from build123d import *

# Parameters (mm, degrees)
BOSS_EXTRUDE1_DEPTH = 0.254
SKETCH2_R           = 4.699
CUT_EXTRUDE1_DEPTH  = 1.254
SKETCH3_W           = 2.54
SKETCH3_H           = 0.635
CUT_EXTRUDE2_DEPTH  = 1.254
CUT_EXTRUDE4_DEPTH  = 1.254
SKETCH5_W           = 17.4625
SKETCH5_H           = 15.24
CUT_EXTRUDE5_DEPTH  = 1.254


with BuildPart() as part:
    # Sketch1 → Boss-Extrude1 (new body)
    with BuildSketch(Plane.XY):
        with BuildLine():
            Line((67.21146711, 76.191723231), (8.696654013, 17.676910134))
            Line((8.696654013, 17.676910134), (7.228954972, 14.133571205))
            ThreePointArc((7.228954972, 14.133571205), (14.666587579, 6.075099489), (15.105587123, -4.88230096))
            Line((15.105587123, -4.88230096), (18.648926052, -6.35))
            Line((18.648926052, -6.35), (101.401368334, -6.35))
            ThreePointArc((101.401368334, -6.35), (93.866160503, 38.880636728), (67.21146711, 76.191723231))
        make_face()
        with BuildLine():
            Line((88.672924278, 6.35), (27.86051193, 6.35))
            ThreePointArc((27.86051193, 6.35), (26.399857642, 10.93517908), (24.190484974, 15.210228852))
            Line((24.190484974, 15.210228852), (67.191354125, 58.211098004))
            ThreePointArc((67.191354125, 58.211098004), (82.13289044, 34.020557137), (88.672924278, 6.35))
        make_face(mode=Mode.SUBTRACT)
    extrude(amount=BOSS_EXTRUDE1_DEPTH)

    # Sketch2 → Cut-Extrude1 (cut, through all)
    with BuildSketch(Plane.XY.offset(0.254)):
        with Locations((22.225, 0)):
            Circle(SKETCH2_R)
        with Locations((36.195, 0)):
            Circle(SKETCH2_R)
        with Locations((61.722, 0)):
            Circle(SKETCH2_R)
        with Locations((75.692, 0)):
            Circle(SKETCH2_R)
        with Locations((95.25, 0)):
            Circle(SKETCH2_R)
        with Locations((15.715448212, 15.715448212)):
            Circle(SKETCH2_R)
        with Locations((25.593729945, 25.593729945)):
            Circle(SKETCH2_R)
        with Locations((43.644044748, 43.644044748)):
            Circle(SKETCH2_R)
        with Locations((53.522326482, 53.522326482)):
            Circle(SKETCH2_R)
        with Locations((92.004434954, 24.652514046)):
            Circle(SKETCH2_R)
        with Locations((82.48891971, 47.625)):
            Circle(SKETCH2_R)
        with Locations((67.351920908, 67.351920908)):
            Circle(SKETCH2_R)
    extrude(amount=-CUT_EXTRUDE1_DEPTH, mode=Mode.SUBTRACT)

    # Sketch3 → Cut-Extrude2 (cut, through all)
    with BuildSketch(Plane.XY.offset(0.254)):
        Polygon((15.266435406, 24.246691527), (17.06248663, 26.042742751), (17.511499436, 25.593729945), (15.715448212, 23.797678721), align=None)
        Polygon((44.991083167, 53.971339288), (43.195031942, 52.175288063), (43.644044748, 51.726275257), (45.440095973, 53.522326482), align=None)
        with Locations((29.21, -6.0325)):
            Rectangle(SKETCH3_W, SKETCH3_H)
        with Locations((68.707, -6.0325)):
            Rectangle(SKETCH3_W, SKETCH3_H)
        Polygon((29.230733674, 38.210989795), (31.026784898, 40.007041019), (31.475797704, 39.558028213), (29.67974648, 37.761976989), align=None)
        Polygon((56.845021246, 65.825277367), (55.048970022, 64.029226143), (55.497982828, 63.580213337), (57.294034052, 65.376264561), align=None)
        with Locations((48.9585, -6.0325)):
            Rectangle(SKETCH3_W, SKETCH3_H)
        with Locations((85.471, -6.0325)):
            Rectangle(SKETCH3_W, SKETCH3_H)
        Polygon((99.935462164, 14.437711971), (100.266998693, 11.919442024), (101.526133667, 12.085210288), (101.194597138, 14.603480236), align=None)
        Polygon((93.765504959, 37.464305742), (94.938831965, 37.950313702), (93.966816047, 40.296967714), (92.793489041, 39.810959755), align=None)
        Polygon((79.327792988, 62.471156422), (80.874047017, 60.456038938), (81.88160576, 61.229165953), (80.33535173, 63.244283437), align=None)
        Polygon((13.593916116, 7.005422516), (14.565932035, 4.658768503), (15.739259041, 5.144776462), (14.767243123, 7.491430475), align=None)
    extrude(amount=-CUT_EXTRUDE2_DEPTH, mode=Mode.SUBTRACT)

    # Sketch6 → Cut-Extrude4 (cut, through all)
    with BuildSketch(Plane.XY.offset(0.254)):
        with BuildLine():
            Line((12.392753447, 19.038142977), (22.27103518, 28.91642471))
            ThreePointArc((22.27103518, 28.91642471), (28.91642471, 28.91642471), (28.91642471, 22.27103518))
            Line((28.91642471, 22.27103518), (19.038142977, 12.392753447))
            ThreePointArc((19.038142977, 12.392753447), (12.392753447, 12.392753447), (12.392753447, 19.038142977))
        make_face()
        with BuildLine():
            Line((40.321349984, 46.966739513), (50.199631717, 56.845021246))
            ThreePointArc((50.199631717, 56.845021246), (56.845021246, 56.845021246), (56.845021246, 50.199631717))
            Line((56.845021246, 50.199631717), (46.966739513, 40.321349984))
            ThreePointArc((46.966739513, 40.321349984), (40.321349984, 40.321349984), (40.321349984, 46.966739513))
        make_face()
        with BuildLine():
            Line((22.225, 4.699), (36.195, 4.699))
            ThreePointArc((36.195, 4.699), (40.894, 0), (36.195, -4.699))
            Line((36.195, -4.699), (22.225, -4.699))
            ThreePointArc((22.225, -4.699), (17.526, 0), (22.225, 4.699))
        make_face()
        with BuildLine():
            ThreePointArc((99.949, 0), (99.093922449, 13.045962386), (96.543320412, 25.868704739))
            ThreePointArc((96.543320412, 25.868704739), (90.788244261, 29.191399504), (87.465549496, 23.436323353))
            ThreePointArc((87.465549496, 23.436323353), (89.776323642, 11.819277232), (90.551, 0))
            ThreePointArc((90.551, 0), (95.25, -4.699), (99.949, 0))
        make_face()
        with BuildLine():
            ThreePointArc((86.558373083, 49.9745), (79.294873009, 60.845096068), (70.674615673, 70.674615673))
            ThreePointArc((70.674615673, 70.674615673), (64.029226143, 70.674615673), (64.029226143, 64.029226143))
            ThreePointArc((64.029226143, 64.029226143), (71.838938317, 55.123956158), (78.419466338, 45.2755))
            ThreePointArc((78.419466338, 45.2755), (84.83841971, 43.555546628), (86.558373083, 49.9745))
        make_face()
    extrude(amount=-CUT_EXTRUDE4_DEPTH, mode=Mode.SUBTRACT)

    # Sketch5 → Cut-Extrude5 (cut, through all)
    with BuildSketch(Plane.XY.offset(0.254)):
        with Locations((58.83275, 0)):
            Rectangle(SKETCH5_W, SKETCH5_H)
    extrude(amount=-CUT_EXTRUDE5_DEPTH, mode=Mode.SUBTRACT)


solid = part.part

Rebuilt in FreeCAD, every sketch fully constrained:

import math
import FreeCAD as App
import Part
import Sketcher
Q = App.Units.Quantity

doc = App.newDocument("Part")
body = doc.addObject("PartDesign::Body", "Body")

# Sketch on XY plane
sketch1 = body.newObject("Sketcher::SketchObject", "Sketch")
sketch1.AttachmentSupport = (doc.getObject("XY_Plane"), [""])
sketch1.MapMode = "FlatFace"
sketch1.addGeometry([
    Part.LineSegment(App.Vector(67.2, 76.2, 0), App.Vector(8.7, 17.7, 0)),  # 0
    Part.LineSegment(App.Vector(8.7, 17.7, 0), App.Vector(7.2, 14.1, 0)),  # 1
    Part.ArcOfCircle(Part.Circle(App.Vector(0, 0, 0), App.Vector(0, 0, 1), 15.9), math.radians(-18), math.radians(63)),  # 2
    Part.LineSegment(App.Vector(15.1, -4.9, 0), App.Vector(18.6, -6.3, 0)),  # 3
    Part.LineSegment(App.Vector(18.6, -6.3, 0), App.Vector(101.4, -6.3, 0)),  # 4
    Part.ArcOfCircle(Part.Circle(App.Vector(0, 0, 0), App.Vector(0, 0, 1), 101.6), math.radians(-4), math.radians(49)),  # 5
    Part.ArcOfCircle(Part.Circle(App.Vector(0, 0, 0), App.Vector(0, 0, 1), 88.9), math.radians(4), math.radians(41)),  # 6
    Part.LineSegment(App.Vector(88.7, 6.3, 0), App.Vector(27.9, 6.3, 0)),  # 7
    Part.ArcOfCircle(Part.Circle(App.Vector(0, 0, 0), App.Vector(0, 0, 1), 28.6), math.radians(12.84), math.radians(32.16)),  # 8
    Part.LineSegment(App.Vector(24.2, 15.2, 0), App.Vector(67.2, 58.2, 0)),  # 9
], False)
sketch1.addConstraint([
    Sketcher.Constraint("Coincident", 0, 2, 1, 1),
    Sketcher.Constraint("Coincident", 1, 2, 2, 2),
    Sketcher.Constraint("Coincident", 2, 1, 3, 1),
    Sketcher.Constraint("Coincident", 3, 2, 4, 1),
    Sketcher.Constraint("Coincident", 4, 2, 5, 1),
    Sketcher.Constraint("Coincident", 5, 2, 0, 1),
    Sketcher.Constraint("Coincident", 6, 1, 7, 1),
    Sketcher.Constraint("Coincident", 7, 2, 8, 1),
    Sketcher.Constraint("Coincident", 8, 2, 9, 1),
    Sketcher.Constraint("Coincident", 9, 2, 6, 2),
    Sketcher.Constraint("Horizontal", 4),
    Sketcher.Constraint("Horizontal", 7),
    Sketcher.Constraint("Coincident", 2, 3, -1, 1),
    Sketcher.Constraint("Coincident", 5, 3, -1, 1),
    Sketcher.Constraint("Coincident", 6, 3, -1, 1),
    Sketcher.Constraint("Coincident", 8, 3, -1, 1),
    Sketcher.Constraint("Perpendicular", 1, 3),
    Sketcher.Constraint("Parallel", 0, 9),
    Sketcher.Constraint("Equal", 1, 3),
    Sketcher.Constraint("Radius", 5, Q("4 in")),
    Sketcher.Constraint("Radius", 6, Q("3.5 in")),
    Sketcher.Constraint("Angle", 0, Q("-135 deg")),
    Sketcher.Constraint("Radius", 2, Q("0.625 in")),
    Sketcher.Constraint("Radius", 8, Q("1.125 in")),
    Sketcher.Constraint("Angle", 1, Q("-112.5 deg")),
    Sketcher.Constraint("DistanceY", 4, 2, 6, 1, Q("0.5 in")),
    Sketcher.Constraint("DistanceY", 3, 2, -1, 1, Q("0.25 in")),
    Sketcher.Constraint("DistanceY", 2, 1, -1, 1, 4.882301),
    Sketcher.Constraint("DistanceY", -1, 1, 9, 2, 58.211098),
    Sketcher.Constraint("DistanceX", 5, 2, 4, 2, 34.189901),
])
pad1 = body.newObject("PartDesign::Pad", "Pad")
pad1.Profile = sketch1
pad1.Length = Q("0.01 in")

# Sketch on XY plane
sketch2 = body.newObject("Sketcher::SketchObject", "Sketch001")
sketch2.AttachmentSupport = (doc.getObject("XY_Plane"), [""])
sketch2.MapMode = "FlatFace"
sketch2.AttachmentOffset = App.Placement(App.Vector(0, 0, 0.01 * 25.4), App.Rotation())
sketch2.addGeometry([
    Part.Circle(App.Vector(22.2, 0, 0), App.Vector(0, 0, 1), 4.7),  # 0
    Part.Circle(App.Vector(36.2, 0, 0), App.Vector(0, 0, 1), 4.7),  # 1
    Part.Circle(App.Vector(61.7, 0, 0), App.Vector(0, 0, 1), 4.7),  # 2
    Part.Circle(App.Vector(75.7, 0, 0), App.Vector(0, 0, 1), 4.7),  # 3
    Part.Circle(App.Vector(95.2, 0, 0), App.Vector(0, 0, 1), 4.7),  # 4
    Part.Circle(App.Vector(15.7, 15.7, 0), App.Vector(0, 0, 1), 4.7),  # 5
    Part.Circle(App.Vector(25.6, 25.6, 0), App.Vector(0, 0, 1), 4.7),  # 6
    Part.Circle(App.Vector(43.6, 43.6, 0), App.Vector(0, 0, 1), 4.7),  # 7
    Part.Circle(App.Vector(53.5, 53.5, 0), App.Vector(0, 0, 1), 4.7),  # 8
    Part.Circle(App.Vector(92, 24.7, 0), App.Vector(0, 0, 1), 4.7),  # 9
    Part.Circle(App.Vector(82.5, 47.6, 0), App.Vector(0, 0, 1), 4.7),  # 10
    Part.Circle(App.Vector(67.4, 67.4, 0), App.Vector(0, 0, 1), 4.7),  # 11
], False)
sketch2.addConstraint([
    Sketcher.Constraint("Equal", 0, 1),
    Sketcher.Constraint("Equal", 1, 2),
    Sketcher.Constraint("Equal", 2, 3),
    Sketcher.Constraint("Equal", 3, 4),
    Sketcher.Constraint("Equal", 4, 5),
    Sketcher.Constraint("Equal", 5, 6),
    Sketcher.Constraint("Equal", 6, 7),
    Sketcher.Constraint("Equal", 7, 8),
    Sketcher.Constraint("Equal", 8, 9),
    Sketcher.Constraint("Equal", 9, 10),
    Sketcher.Constraint("Equal", 10, 11),
    Sketcher.Constraint("PointOnObject", 0, 3, -1),
    Sketcher.Constraint("PointOnObject", 1, 3, -1),
    Sketcher.Constraint("PointOnObject", 2, 3, -1),
    Sketcher.Constraint("PointOnObject", 3, 3, -1),
    Sketcher.Constraint("PointOnObject", 4, 3, -1),
    Sketcher.Constraint("Diameter", 0, Q("0.37 in")),
    Sketcher.Constraint("DistanceX", -1, 1, 2, 3, Q("2.43 in")),
    Sketcher.Constraint("DistanceX", -1, 1, 3, 3, Q("2.98 in")),
    Sketcher.Constraint("DistanceX", -1, 1, 4, 3, Q("3.75 in")),
    Sketcher.Constraint("DistanceX", 0, 3, 1, 3, Q("0.55 in")),
    Sketcher.Constraint("DistanceX", -1, 1, 0, 3, Q("0.875 in")),
    Sketcher.Constraint("DistanceY", -1, 1, 10, 3, Q("1.875 in")),
    Sketcher.Constraint("DistanceX", 11, 3, 10, 3, 15.136999),
    Sketcher.Constraint("DistanceX", -1, 1, 5, 3, 15.715448),
    Sketcher.Constraint("DistanceY", -1, 1, 5, 3, 15.715448),
    Sketcher.Constraint("DistanceX", -1, 1, 6, 3, 25.59373),
    Sketcher.Constraint("DistanceY", -1, 1, 6, 3, 25.59373),
    Sketcher.Constraint("DistanceX", -1, 1, 10, 3, 82.48892),
    Sketcher.Constraint("DistanceY", -1, 1, 11, 3, 67.351921),
    Sketcher.Constraint("DistanceX", 7, 3, 8, 3, 9.878282),
    Sketcher.Constraint("DistanceY", 7, 3, 8, 3, 9.878282),
    Sketcher.Constraint("DistanceX", 5, 3, 8, 3, 37.806878),
    Sketcher.Constraint("DistanceY", 5, 3, 8, 3, 37.806878),
    Sketcher.Constraint("DistanceX", 8, 3, 9, 3, 38.482108),
    Sketcher.Constraint("DistanceY", 9, 3, 7, 3, 18.991531),
])
pocket1 = body.newObject("PartDesign::Pocket", "Pocket")
pocket1.Profile = sketch2
pocket1.Type = "ThroughAll"

# Sketch on XY plane
sketch3 = body.newObject("Sketcher::SketchObject", "Sketch002")
sketch3.AttachmentSupport = (doc.getObject("XY_Plane"), [""])
sketch3.MapMode = "FlatFace"
sketch3.AttachmentOffset = App.Placement(App.Vector(0, 0, 0.01 * 25.4), App.Rotation())
sketch3.addGeometry([
    Part.LineSegment(App.Vector(17.1, 26, 0), App.Vector(15.3, 24.2, 0)),  # 0
    Part.LineSegment(App.Vector(15.3, 24.2, 0), App.Vector(15.7, 23.8, 0)),  # 1
    Part.LineSegment(App.Vector(15.7, 23.8, 0), App.Vector(17.5, 25.6, 0)),  # 2
    Part.LineSegment(App.Vector(17.5, 25.6, 0), App.Vector(17.1, 26, 0)),  # 3
    Part.LineSegment(App.Vector(45, 54, 0), App.Vector(43.2, 52.2, 0)),  # 4
    Part.LineSegment(App.Vector(43.2, 52.2, 0), App.Vector(43.6, 51.7, 0)),  # 5
    Part.LineSegment(App.Vector(43.6, 51.7, 0), App.Vector(45.4, 53.5, 0)),  # 6
    Part.LineSegment(App.Vector(45.4, 53.5, 0), App.Vector(45, 54, 0)),  # 7
    Part.LineSegment(App.Vector(27.9, -5.7, 0), App.Vector(27.9, -6.3, 0)),  # 8
    Part.LineSegment(App.Vector(27.9, -6.3, 0), App.Vector(30.5, -6.3, 0)),  # 9
    Part.LineSegment(App.Vector(30.5, -6.3, 0), App.Vector(30.5, -5.7, 0)),  # 10
    Part.LineSegment(App.Vector(30.5, -5.7, 0), App.Vector(27.9, -5.7, 0)),  # 11
    Part.LineSegment(App.Vector(67.4, -5.7, 0), App.Vector(67.4, -6.3, 0)),  # 12
    Part.LineSegment(App.Vector(67.4, -6.3, 0), App.Vector(70, -6.3, 0)),  # 13
    Part.LineSegment(App.Vector(70, -6.3, 0), App.Vector(70, -5.7, 0)),  # 14
    Part.LineSegment(App.Vector(70, -5.7, 0), App.Vector(67.4, -5.7, 0)),  # 15
    Part.LineSegment(App.Vector(31, 40, 0), App.Vector(29.2, 38.2, 0)),  # 16
    Part.LineSegment(App.Vector(29.2, 38.2, 0), App.Vector(29.7, 37.8, 0)),  # 17
    Part.LineSegment(App.Vector(29.7, 37.8, 0), App.Vector(31.5, 39.6, 0)),  # 18
    Part.LineSegment(App.Vector(31.5, 39.6, 0), App.Vector(31, 40, 0)),  # 19
    Part.LineSegment(App.Vector(56.8, 65.8, 0), App.Vector(55, 64, 0)),  # 20
    Part.LineSegment(App.Vector(55, 64, 0), App.Vector(55.5, 63.6, 0)),  # 21
    Part.LineSegment(App.Vector(55.5, 63.6, 0), App.Vector(57.3, 65.4, 0)),  # 22
    Part.LineSegment(App.Vector(57.3, 65.4, 0), App.Vector(56.8, 65.8, 0)),  # 23
    Part.LineSegment(App.Vector(47.7, -5.7, 0), App.Vector(47.7, -6.3, 0)),  # 24
    Part.LineSegment(App.Vector(47.7, -6.3, 0), App.Vector(50.2, -6.3, 0)),  # 25
    Part.LineSegment(App.Vector(50.2, -6.3, 0), App.Vector(50.2, -5.7, 0)),  # 26
    Part.LineSegment(App.Vector(50.2, -5.7, 0), App.Vector(47.7, -5.7, 0)),  # 27
    Part.LineSegment(App.Vector(84.2, -5.7, 0), App.Vector(84.2, -6.3, 0)),  # 28
    Part.LineSegment(App.Vector(84.2, -6.3, 0), App.Vector(86.7, -6.3, 0)),  # 29
    Part.LineSegment(App.Vector(86.7, -6.3, 0), App.Vector(86.7, -5.7, 0)),  # 30
    Part.LineSegment(App.Vector(86.7, -5.7, 0), App.Vector(84.2, -5.7, 0)),  # 31
    Part.LineSegment(App.Vector(99.9, 14.4, 0), App.Vector(100.3, 11.9, 0)),  # 32
    Part.LineSegment(App.Vector(100.3, 11.9, 0), App.Vector(101.5, 12.1, 0)),  # 33
    Part.LineSegment(App.Vector(101.5, 12.1, 0), App.Vector(101.2, 14.6, 0)),  # 34
    Part.LineSegment(App.Vector(101.2, 14.6, 0), App.Vector(99.9, 14.4, 0)),  # 35
    Part.LineSegment(App.Vector(93.8, 37.5, 0), App.Vector(94.9, 38, 0)),  # 36
    Part.LineSegment(App.Vector(94.9, 38, 0), App.Vector(94, 40.3, 0)),  # 37
    Part.LineSegment(App.Vector(94, 40.3, 0), App.Vector(92.8, 39.8, 0)),  # 38
    Part.LineSegment(App.Vector(92.8, 39.8, 0), App.Vector(93.8, 37.5, 0)),  # 39
    Part.LineSegment(App.Vector(79.3, 62.5, 0), App.Vector(80.9, 60.5, 0)),  # 40
    Part.LineSegment(App.Vector(80.9, 60.5, 0), App.Vector(81.9, 61.2, 0)),  # 41
    Part.LineSegment(App.Vector(81.9, 61.2, 0), App.Vector(80.3, 63.2, 0)),  # 42
    Part.LineSegment(App.Vector(80.3, 63.2, 0), App.Vector(79.3, 62.5, 0)),  # 43
    Part.LineSegment(App.Vector(13.6, 7, 0), App.Vector(14.6, 4.7, 0)),  # 44
    Part.LineSegment(App.Vector(14.6, 4.7, 0), App.Vector(15.7, 5.1, 0)),  # 45
    Part.LineSegment(App.Vector(15.7, 5.1, 0), App.Vector(14.8, 7.5, 0)),  # 46
    Part.LineSegment(App.Vector(14.8, 7.5, 0), App.Vector(13.6, 7, 0)),  # 47
], False)
sketch3.addConstraint([
    Sketcher.Constraint("Coincident", 0, 2, 1, 1),
    Sketcher.Constraint("Coincident", 1, 2, 2, 1),
    Sketcher.Constraint("Coincident", 2, 2, 3, 1),
    Sketcher.Constraint("Coincident", 3, 2, 0, 1),
    Sketcher.Constraint("Coincident", 4, 2, 5, 1),
    Sketcher.Constraint("Coincident", 5, 2, 6, 1),
    Sketcher.Constraint("Coincident", 6, 2, 7, 1),
    Sketcher.Constraint("Coincident", 7, 2, 4, 1),
    Sketcher.Constraint("Coincident", 8, 2, 9, 1),
    Sketcher.Constraint("Coincident", 9, 2, 10, 1),
    Sketcher.Constraint("Coincident", 10, 2, 11, 1),
    Sketcher.Constraint("Coincident", 11, 2, 8, 1),
    Sketcher.Constraint("Coincident", 12, 2, 13, 1),
    Sketcher.Constraint("Coincident", 13, 2, 14, 1),
    Sketcher.Constraint("Coincident", 14, 2, 15, 1),
    Sketcher.Constraint("Coincident", 15, 2, 12, 1),
    Sketcher.Constraint("Coincident", 16, 2, 17, 1),
    Sketcher.Constraint("Coincident", 17, 2, 18, 1),
    Sketcher.Constraint("Coincident", 18, 2, 19, 1),
    Sketcher.Constraint("Coincident", 19, 2, 16, 1),
    Sketcher.Constraint("Coincident", 20, 2, 21, 1),
    Sketcher.Constraint("Coincident", 21, 2, 22, 1),
    Sketcher.Constraint("Coincident", 22, 2, 23, 1),
    Sketcher.Constraint("Coincident", 23, 2, 20, 1),
    Sketcher.Constraint("Coincident", 24, 2, 25, 1),
    Sketcher.Constraint("Coincident", 25, 2, 26, 1),
    Sketcher.Constraint("Coincident", 26, 2, 27, 1),
    Sketcher.Constraint("Coincident", 27, 2, 24, 1),
    Sketcher.Constraint("Coincident", 28, 2, 29, 1),
    Sketcher.Constraint("Coincident", 29, 2, 30, 1),
    Sketcher.Constraint("Coincident", 30, 2, 31, 1),
    Sketcher.Constraint("Coincident", 31, 2, 28, 1),
    Sketcher.Constraint("Coincident", 32, 2, 33, 1),
    Sketcher.Constraint("Coincident", 33, 2, 34, 1),
    Sketcher.Constraint("Coincident", 34, 2, 35, 1),
    Sketcher.Constraint("Coincident", 35, 2, 32, 1),
    Sketcher.Constraint("Coincident", 36, 2, 37, 1),
    Sketcher.Constraint("Coincident", 37, 2, 38, 1),
    Sketcher.Constraint("Coincident", 38, 2, 39, 1),
    Sketcher.Constraint("Coincident", 39, 2, 36, 1),
    Sketcher.Constraint("Coincident", 40, 2, 41, 1),
    Sketcher.Constraint("Coincident", 41, 2, 42, 1),
    Sketcher.Constraint("Coincident", 42, 2, 43, 1),
    Sketcher.Constraint("Coincident", 43, 2, 40, 1),
    Sketcher.Constraint("Coincident", 44, 2, 45, 1),
    Sketcher.Constraint("Coincident", 45, 2, 46, 1),
    Sketcher.Constraint("Coincident", 46, 2, 47, 1),
    Sketcher.Constraint("Coincident", 47, 2, 44, 1),
    Sketcher.Constraint("Vertical", 8),
    Sketcher.Constraint("Horizontal", 9),
    Sketcher.Constraint("Vertical", 10),
    Sketcher.Constraint("Horizontal", 11),
    Sketcher.Constraint("Vertical", 12),
    Sketcher.Constraint("Horizontal", 13),
    Sketcher.Constraint("Vertical", 14),
    Sketcher.Constraint("Horizontal", 15),
    Sketcher.Constraint("Vertical", 24),
    Sketcher.Constraint("Horizontal", 25),
    Sketcher.Constraint("Vertical", 26),
    Sketcher.Constraint("Horizontal", 27),
    Sketcher.Constraint("Vertical", 28),
    Sketcher.Constraint("Horizontal", 29),
    Sketcher.Constraint("Vertical", 30),
    Sketcher.Constraint("Horizontal", 31),
    Sketcher.Constraint("Perpendicular", 0, 1),
    Sketcher.Constraint("Perpendicular", 1, 2),
    Sketcher.Constraint("Perpendicular", 2, 3),
    Sketcher.Constraint("Perpendicular", 3, 4),
    Sketcher.Constraint("Perpendicular", 4, 5),
    Sketcher.Constraint("Perpendicular", 5, 6),
    Sketcher.Constraint("Perpendicular", 6, 7),
    Sketcher.Constraint("Perpendicular", 7, 16),
    Sketcher.Constraint("Perpendicular", 16, 17),
    Sketcher.Constraint("Perpendicular", 17, 18),
    Sketcher.Constraint("Perpendicular", 18, 19),
    Sketcher.Constraint("Perpendicular", 19, 20),
    Sketcher.Constraint("Perpendicular", 20, 21),
    Sketcher.Constraint("Perpendicular", 21, 22),
    Sketcher.Constraint("Perpendicular", 22, 23),
    Sketcher.Constraint("Perpendicular", 32, 33),
    Sketcher.Constraint("Perpendicular", 33, 34),
    Sketcher.Constraint("Perpendicular", 34, 35),
    Sketcher.Constraint("Perpendicular", 36, 37),
    Sketcher.Constraint("Perpendicular", 37, 38),
    Sketcher.Constraint("Perpendicular", 38, 39),
    Sketcher.Constraint("Perpendicular", 40, 41),
    Sketcher.Constraint("Perpendicular", 41, 42),
    Sketcher.Constraint("Perpendicular", 42, 43),
    Sketcher.Constraint("Parallel", 39, 44),
    Sketcher.Constraint("Perpendicular", 44, 45),
    Sketcher.Constraint("Perpendicular", 45, 46),
    Sketcher.Constraint("Perpendicular", 46, 47),
    Sketcher.Constraint("Horizontal", 9, 2, 12, 2),
    Sketcher.Constraint("Horizontal", 11, 2, 14, 2),
    Sketcher.Constraint("Horizontal", 13, 2, 24, 2),
    Sketcher.Constraint("Horizontal", 15, 2, 26, 2),
    Sketcher.Constraint("Horizontal", 25, 2, 28, 2),
    Sketcher.Constraint("Horizontal", 27, 2, 30, 2),
    Sketcher.Constraint("Equal", 11, 13),
    Sketcher.Constraint("Equal", 15, 25),
    Sketcher.Constraint("Equal", 27, 29),
    Sketcher.Constraint("Equal", 2, 4),
    Sketcher.Constraint("Equal", 3, 5),
    Sketcher.Constraint("Equal", 6, 16),
    Sketcher.Constraint("Equal", 7, 17),
    Sketcher.Constraint("Equal", 18, 20),
    Sketcher.Constraint("Equal", 19, 21),
    Sketcher.Constraint("Equal", 22, 32),
    Sketcher.Constraint("Equal", 35, 36),
    Sketcher.Constraint("Equal", 34, 37),
    Sketcher.Constraint("Equal", 39, 40),
    Sketcher.Constraint("Equal", 38, 41),
    Sketcher.Constraint("Equal", 42, 44),
    Sketcher.Constraint("Equal", 43, 45),
    Sketcher.Constraint("DistanceX", 9, 1, 9, 2, Q("0.1 in")),
    Sketcher.Constraint("Angle", 0, Q("-135 deg")),
    Sketcher.Constraint("Distance", 0, Q("0.1 in")),
    Sketcher.Constraint("DistanceX", -1, 1, 8, 2, Q("1.1 in")),
    Sketcher.Constraint("Angle", 32, Q("-82.5 deg")),
    Sketcher.Constraint("Angle", 36, Q("22.5 deg")),
    Sketcher.Constraint("Angle", 40, Q("-52.5 deg")),
    Sketcher.Constraint("Distance", 33, Q("0.05 in")),
    Sketcher.Constraint("DistanceY", 8, 2, 8, 1, Q("0.025 in")),
    Sketcher.Constraint("DistanceY", 8, 2, -1, 1, Q("0.25 in")),
    Sketcher.Constraint("DistanceX", 13, 2, 28, 2, Q("0.56 in")),
    Sketcher.Constraint("Distance", 1, Q("0.025 in")),
    Sketcher.Constraint("DistanceX", -1, 1, 12, 2, Q("2.655 in")),
    Sketcher.Constraint("DistanceX", -1, 1, 24, 2, Q("1.8775 in")),
    Sketcher.Constraint("DistanceX", -1, 1, 2, 2, 17.511499),
    Sketcher.Constraint("DistanceX", -1, 1, 32, 2, 100.266999),
    Sketcher.Constraint("DistanceX", 16, 2, 4, 2, 13.964298),
    Sketcher.Constraint("DistanceY", 16, 2, 4, 2, 13.964298),
    Sketcher.Constraint("DistanceX", 0, 2, 16, 2, 13.964298),
    Sketcher.Constraint("DistanceY", 0, 2, 16, 2, 13.964298),
    Sketcher.Constraint("DistanceY", 6, 2, 20, 2, 10.5069),
    Sketcher.Constraint("DistanceX", 7, 2, 21, 2, 10.5069),
    Sketcher.Constraint("DistanceY", 35, 2, 36, 2, 23.512602),
    Sketcher.Constraint("DistanceX", 36, 2, 33, 2, 6.587302),
    Sketcher.Constraint("DistanceY", 37, 2, 41, 2, 20.932198),
    Sketcher.Constraint("DistanceY", 41, 2, 22, 2, 4.147099),
    Sketcher.Constraint("DistanceY", 46, 2, 2, 2, 18.102299),
    Sketcher.Constraint("DistanceY", -1, 1, 0, 2, 24.246692),
    Sketcher.Constraint("DistanceX", -1, 1, 42, 2, 80.335352),
    Sketcher.Constraint("DistanceX", -1, 1, 45, 2, 15.739259),
])
pocket2 = body.newObject("PartDesign::Pocket", "Pocket001")
pocket2.Profile = sketch3
pocket2.Type = "ThroughAll"

# Sketch on XY plane
sketch4 = body.newObject("Sketcher::SketchObject", "Sketch003")
sketch4.AttachmentSupport = (doc.getObject("XY_Plane"), [""])
sketch4.MapMode = "FlatFace"
sketch4.AttachmentOffset = App.Placement(App.Vector(0, 0, 0.01 * 25.4), App.Rotation())
sketch4.addGeometry([
    Part.LineSegment(App.Vector(22.3, 28.9, 0), App.Vector(12.4, 19, 0)),  # 0
    Part.ArcOfCircle(Part.Circle(App.Vector(15.7, 15.7, 0), App.Vector(0, 0, 1), 4.7), math.radians(135), math.radians(315)),  # 1
    Part.LineSegment(App.Vector(19, 12.4, 0), App.Vector(28.9, 22.3, 0)),  # 2
    Part.ArcOfCircle(Part.Circle(App.Vector(25.6, 25.6, 0), App.Vector(0, 0, 1), 4.7), math.radians(-45), math.radians(135)),  # 3
    Part.LineSegment(App.Vector(50.2, 56.8, 0), App.Vector(40.3, 47, 0)),  # 4
    Part.ArcOfCircle(Part.Circle(App.Vector(43.6, 43.6, 0), App.Vector(0, 0, 1), 4.7), math.radians(135), math.radians(315)),  # 5
    Part.LineSegment(App.Vector(47, 40.3, 0), App.Vector(56.8, 50.2, 0)),  # 6
    Part.ArcOfCircle(Part.Circle(App.Vector(53.5, 53.5, 0), App.Vector(0, 0, 1), 4.7), math.radians(-45), math.radians(135)),  # 7
    Part.LineSegment(App.Vector(36.2, 4.7, 0), App.Vector(22.2, 4.7, 0)),  # 8
    Part.ArcOfCircle(Part.Circle(App.Vector(22.2, 0, 0), App.Vector(0, 0, 1), 4.7), math.radians(90), math.radians(270)),  # 9
    Part.LineSegment(App.Vector(22.2, -4.7, 0), App.Vector(36.2, -4.7, 0)),  # 10
    Part.ArcOfCircle(Part.Circle(App.Vector(36.2, 0, 0), App.Vector(0, 0, 1), 4.7), math.radians(-90), math.radians(90)),  # 11
    Part.ArcOfCircle(Part.Circle(App.Vector(0, 0, 0), App.Vector(0, 0, 1), 99.9), math.radians(0), math.radians(15)),  # 12
    Part.ArcOfCircle(Part.Circle(App.Vector(92, 24.7, 0), App.Vector(0, 0, 1), 4.7), math.radians(15), math.radians(195)),  # 13
    Part.ArcOfCircle(Part.Circle(App.Vector(0, 0, 0), App.Vector(0, 0, 1), 90.6), math.radians(0), math.radians(15)),  # 14
    Part.ArcOfCircle(Part.Circle(App.Vector(95.2, 0, 0), App.Vector(0, 0, 1), 4.7), math.radians(180), math.radians(360)),  # 15
    Part.ArcOfCircle(Part.Circle(App.Vector(0, 0, 0), App.Vector(0, 0, 1), 99.9), math.radians(30), math.radians(45)),  # 16
    Part.ArcOfCircle(Part.Circle(App.Vector(67.4, 67.4, 0), App.Vector(0, 0, 1), 4.7), math.radians(45), math.radians(225)),  # 17
    Part.ArcOfCircle(Part.Circle(App.Vector(0, 0, 0), App.Vector(0, 0, 1), 90.6), math.radians(30), math.radians(45)),  # 18
    Part.ArcOfCircle(Part.Circle(App.Vector(82.5, 47.6, 0), App.Vector(0, 0, 1), 4.7), math.radians(-150), math.radians(30)),  # 19
], False)
sketch4.addConstraint([
    Sketcher.Constraint("Tangent", 0, 2, 1, 1),
    Sketcher.Constraint("Tangent", 1, 2, 2, 1),
    Sketcher.Constraint("Tangent", 2, 2, 3, 1),
    Sketcher.Constraint("Tangent", 3, 2, 0, 1),
    Sketcher.Constraint("Tangent", 4, 2, 5, 1),
    Sketcher.Constraint("Tangent", 5, 2, 6, 1),
    Sketcher.Constraint("Tangent", 6, 2, 7, 1),
    Sketcher.Constraint("Tangent", 7, 2, 4, 1),
    Sketcher.Constraint("Tangent", 8, 2, 9, 1),
    Sketcher.Constraint("Tangent", 9, 2, 10, 1),
    Sketcher.Constraint("Tangent", 10, 2, 11, 1),
    Sketcher.Constraint("Tangent", 11, 2, 8, 1),
    Sketcher.Constraint("Tangent", 12, 2, 13, 1),
    Sketcher.Constraint("Tangent", 13, 2, 14, 2),
    Sketcher.Constraint("Tangent", 14, 1, 15, 1),
    Sketcher.Constraint("Tangent", 15, 2, 12, 1),
    Sketcher.Constraint("Tangent", 16, 2, 17, 1),
    Sketcher.Constraint("Tangent", 17, 2, 18, 2),
    Sketcher.Constraint("Tangent", 18, 1, 19, 1),
    Sketcher.Constraint("Tangent", 19, 2, 16, 1),
    Sketcher.Constraint("Horizontal", 8),
    Sketcher.Constraint("Horizontal", 10),
    Sketcher.Constraint("Coincident", 12, 3, -1, 1),
    Sketcher.Constraint("Coincident", 14, 3, -1, 1),
    Sketcher.Constraint("Coincident", 16, 3, -1, 1),
    Sketcher.Constraint("Coincident", 18, 3, -1, 1),
    Sketcher.Constraint("Equal", 1, 3),
    Sketcher.Constraint("Equal", 3, 5),
    Sketcher.Constraint("Equal", 5, 7),
    Sketcher.Constraint("Equal", 7, 9),
    Sketcher.Constraint("Equal", 11, 13),
    Sketcher.Constraint("Equal", 12, 16),
    Sketcher.Constraint("Equal", 15, 17),
    Sketcher.Constraint("PointOnObject", 9, 3, -1),
    Sketcher.Constraint("PointOnObject", 15, 3, -1),
    Sketcher.Constraint("Parallel", 2, 4),
    Sketcher.Constraint("Equal", 2, 4),
    Sketcher.Constraint("Angle", 0, Q("-135 deg")),
    Sketcher.Constraint("Radius", 1, Q("0.185 in")),
    Sketcher.Constraint("Radius", 12, Q("3.935 in")),
    Sketcher.Constraint("DistanceX", 8, 2, 8, 1, Q("0.55 in")),
    Sketcher.Constraint("Distance", 0, Q("0.55 in")),
    Sketcher.Constraint("DistanceX", -1, 1, 9, 3, Q("0.875 in")),
    Sketcher.Constraint("DistanceY", -1, 1, 19, 3, Q("1.875 in")),
    Sketcher.Constraint("DistanceX", 17, 3, 19, 3, 15.136999),
    Sketcher.Constraint("DistanceX", 6, 2, 17, 3, 10.5069),
    Sketcher.Constraint("DistanceX", 19, 3, 12, 2, 14.054401),
    Sketcher.Constraint("DistanceY", 7, 3, 17, 2, 10.5069),
    Sketcher.Constraint("DistanceX", -1, 1, 1, 3, 15.715448),
    Sketcher.Constraint("DistanceY", -1, 1, 1, 3, 15.715448),
])
pocket3 = body.newObject("PartDesign::Pocket", "Pocket002")
pocket3.Profile = sketch4
pocket3.Type = "ThroughAll"

# Sketch on XY plane
sketch5 = body.newObject("Sketcher::SketchObject", "Sketch004")
sketch5.AttachmentSupport = (doc.getObject("XY_Plane"), [""])
sketch5.MapMode = "FlatFace"
sketch5.AttachmentOffset = App.Placement(App.Vector(0, 0, 0.01 * 25.4), App.Rotation())
sketch5.addGeometry([
    Part.LineSegment(App.Vector(50, 8, 0), App.Vector(50, -8, 0)),
    Part.LineSegment(App.Vector(50, -8, 0), App.Vector(68, -8, 0)),
    Part.LineSegment(App.Vector(68, -8, 0), App.Vector(68, 8, 0)),
    Part.LineSegment(App.Vector(68, 8, 0), App.Vector(50, 8, 0)),
], False)
sketch5.addConstraint([
    Sketcher.Constraint("Coincident", 0, 2, 1, 1),
    Sketcher.Constraint("Coincident", 1, 2, 2, 1),
    Sketcher.Constraint("Coincident", 2, 2, 3, 1),
    Sketcher.Constraint("Coincident", 3, 2, 0, 1),
    Sketcher.Constraint("Vertical", 0),
    Sketcher.Constraint("Horizontal", 1),
    Sketcher.Constraint("Vertical", 2),
    Sketcher.Constraint("Horizontal", 3),
    Sketcher.Constraint("DistanceY", 0, 2, 0, 1, Q("0.6 in")),
    Sketcher.Constraint("DistanceY", 0, 2, -1, 1, Q("0.3 in")),
    Sketcher.Constraint("DistanceX", 1, 1, 1, 2, Q("0.6875 in")),
    Sketcher.Constraint("DistanceX", -1, 1, 1, 2, Q("2.66 in")),
])
pocket4 = body.newObject("PartDesign::Pocket", "Pocket003")
pocket4.Profile = sketch5
pocket4.Type = "ThroughAll"

doc.recompute()
